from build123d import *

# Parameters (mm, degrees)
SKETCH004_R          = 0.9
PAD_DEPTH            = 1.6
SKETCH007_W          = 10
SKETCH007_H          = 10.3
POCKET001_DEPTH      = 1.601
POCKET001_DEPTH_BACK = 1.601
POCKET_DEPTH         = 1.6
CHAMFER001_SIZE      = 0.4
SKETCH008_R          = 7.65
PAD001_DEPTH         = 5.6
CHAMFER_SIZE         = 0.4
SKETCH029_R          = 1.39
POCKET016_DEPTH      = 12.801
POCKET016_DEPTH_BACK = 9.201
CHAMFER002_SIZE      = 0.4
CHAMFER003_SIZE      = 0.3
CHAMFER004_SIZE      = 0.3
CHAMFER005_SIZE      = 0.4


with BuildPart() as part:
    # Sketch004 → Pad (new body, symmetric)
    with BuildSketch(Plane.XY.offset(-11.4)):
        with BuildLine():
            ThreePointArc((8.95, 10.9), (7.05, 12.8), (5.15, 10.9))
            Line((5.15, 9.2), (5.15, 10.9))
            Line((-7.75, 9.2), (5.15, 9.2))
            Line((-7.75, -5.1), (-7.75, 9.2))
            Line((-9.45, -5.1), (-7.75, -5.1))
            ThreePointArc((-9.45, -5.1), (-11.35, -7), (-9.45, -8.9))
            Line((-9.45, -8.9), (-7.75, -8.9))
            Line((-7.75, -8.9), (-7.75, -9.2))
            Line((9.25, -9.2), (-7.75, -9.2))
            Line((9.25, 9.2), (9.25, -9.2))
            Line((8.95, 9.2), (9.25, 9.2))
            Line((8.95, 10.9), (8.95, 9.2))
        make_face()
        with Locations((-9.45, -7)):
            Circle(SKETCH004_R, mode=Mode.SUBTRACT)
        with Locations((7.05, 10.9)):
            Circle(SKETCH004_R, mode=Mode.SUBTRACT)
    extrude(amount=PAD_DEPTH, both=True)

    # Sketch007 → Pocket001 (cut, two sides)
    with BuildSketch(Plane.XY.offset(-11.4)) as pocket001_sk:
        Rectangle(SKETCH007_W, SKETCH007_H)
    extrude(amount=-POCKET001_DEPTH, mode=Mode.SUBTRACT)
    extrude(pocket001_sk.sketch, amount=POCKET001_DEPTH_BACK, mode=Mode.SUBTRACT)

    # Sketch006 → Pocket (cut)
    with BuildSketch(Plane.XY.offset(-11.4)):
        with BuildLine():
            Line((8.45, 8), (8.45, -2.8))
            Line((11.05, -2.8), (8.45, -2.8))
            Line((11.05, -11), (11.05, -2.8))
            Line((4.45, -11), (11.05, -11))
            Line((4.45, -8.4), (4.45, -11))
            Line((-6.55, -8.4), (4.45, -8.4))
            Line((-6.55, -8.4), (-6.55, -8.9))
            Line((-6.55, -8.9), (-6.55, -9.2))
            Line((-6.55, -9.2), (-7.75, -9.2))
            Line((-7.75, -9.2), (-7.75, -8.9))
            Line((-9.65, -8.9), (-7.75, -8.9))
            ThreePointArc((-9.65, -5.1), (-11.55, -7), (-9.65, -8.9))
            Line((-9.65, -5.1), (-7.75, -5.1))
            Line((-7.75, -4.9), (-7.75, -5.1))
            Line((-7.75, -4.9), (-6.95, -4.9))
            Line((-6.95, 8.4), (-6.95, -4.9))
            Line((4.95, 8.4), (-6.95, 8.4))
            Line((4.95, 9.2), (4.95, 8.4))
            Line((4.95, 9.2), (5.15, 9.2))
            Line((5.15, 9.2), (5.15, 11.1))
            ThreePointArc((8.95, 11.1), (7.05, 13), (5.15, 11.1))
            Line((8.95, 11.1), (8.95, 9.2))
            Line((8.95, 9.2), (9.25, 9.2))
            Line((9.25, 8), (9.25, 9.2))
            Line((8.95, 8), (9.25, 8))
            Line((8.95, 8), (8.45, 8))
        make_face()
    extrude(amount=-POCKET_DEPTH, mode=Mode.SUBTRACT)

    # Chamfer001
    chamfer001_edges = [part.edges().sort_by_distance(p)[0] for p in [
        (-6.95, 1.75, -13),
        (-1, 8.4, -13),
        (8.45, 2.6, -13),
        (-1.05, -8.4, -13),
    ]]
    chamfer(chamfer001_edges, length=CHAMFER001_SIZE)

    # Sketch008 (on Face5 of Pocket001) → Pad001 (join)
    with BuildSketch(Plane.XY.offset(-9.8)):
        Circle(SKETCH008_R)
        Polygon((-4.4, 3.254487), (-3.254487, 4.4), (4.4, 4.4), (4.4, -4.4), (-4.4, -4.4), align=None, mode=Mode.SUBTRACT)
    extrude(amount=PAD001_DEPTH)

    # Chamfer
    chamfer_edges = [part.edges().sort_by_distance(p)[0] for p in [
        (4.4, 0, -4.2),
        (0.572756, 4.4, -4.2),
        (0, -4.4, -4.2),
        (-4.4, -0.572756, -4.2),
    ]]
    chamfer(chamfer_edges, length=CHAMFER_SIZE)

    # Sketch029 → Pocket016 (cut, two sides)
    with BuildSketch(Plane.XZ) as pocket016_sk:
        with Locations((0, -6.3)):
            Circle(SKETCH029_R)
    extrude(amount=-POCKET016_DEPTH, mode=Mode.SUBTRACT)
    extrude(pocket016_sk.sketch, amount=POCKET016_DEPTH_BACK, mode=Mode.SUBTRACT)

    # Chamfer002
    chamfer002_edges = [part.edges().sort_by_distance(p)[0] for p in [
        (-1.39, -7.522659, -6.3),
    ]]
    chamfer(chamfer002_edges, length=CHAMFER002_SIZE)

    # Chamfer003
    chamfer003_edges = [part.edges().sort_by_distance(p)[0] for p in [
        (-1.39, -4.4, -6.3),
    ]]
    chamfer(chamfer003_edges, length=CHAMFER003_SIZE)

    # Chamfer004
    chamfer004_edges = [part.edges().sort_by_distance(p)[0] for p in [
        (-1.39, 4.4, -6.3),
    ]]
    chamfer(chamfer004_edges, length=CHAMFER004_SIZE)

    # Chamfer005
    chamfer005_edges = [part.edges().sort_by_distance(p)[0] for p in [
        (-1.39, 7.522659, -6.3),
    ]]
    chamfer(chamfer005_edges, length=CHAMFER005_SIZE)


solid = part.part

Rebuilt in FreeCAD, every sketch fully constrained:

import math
import FreeCAD as App
import Part
import Sketcher

V = App.Vector
Q = App.Units.Quantity


def edges_at(feature, points):
    """Names of the edges that pass closest to the given points."""
    edges = feature.Shape.Edges
    near = lambda p: min(range(len(edges)), key=lambda i: edges[i].distToShape(Part.Vertex(*p))[0])
    return sorted({f"Edge{near(p) + 1}" for p in points})


def add_polygon(sketch, points):
    """Adds a closed chain of lines whose ends are joined by coincident constraints."""
    first, n = sketch.GeometryCount, len(points)
    for a, b in zip(points, points[1:] + points[:1]):
        sketch.addGeometry(Part.LineSegment(App.Vector(*a, 0), App.Vector(*b, 0)), False)
    for i in range(n):
        sketch.addConstraint(Sketcher.Constraint("Coincident", first + i, 2, first + (i + 1) % n, 1))

doc = App.newDocument("Part")
body = doc.addObject("PartDesign::Body", "Body")

# Sketch on XY plane
sketch1 = body.newObject("Sketcher::SketchObject", "Sketch")
sketch1.AttachmentSupport = (doc.getObject("XY_Plane"), [""])
sketch1.MapMode = "FlatFace"
sketch1.AttachmentOffset = App.Placement(V(0, 0, -11.4), App.Rotation())
sketch1.addGeometry([
    Part.ArcOfCircle(Part.Circle(V(7.05, 10.9, 0), V(0, 0, 1), 1.9), math.radians(0), math.radians(180)),  # 0
    Part.LineSegment(V(5.15, 10.9, 0), V(5.15, 9.2, 0)),  # 1
    Part.LineSegment(V(5.15, 9.2, 0), V(-7.75, 9.2, 0)),  # 2
    Part.LineSegment(V(-7.75, 9.2, 0), V(-7.75, -5.1, 0)),  # 3
    Part.LineSegment(V(-7.75, -5.1, 0), V(-9.45, -5.1, 0)),  # 4
    Part.ArcOfCircle(Part.Circle(V(-9.45, -7, 0), V(0, 0, 1), 1.9), math.radians(90), math.radians(270)),  # 5
    Part.LineSegment(V(-9.45, -8.9, 0), V(-7.75, -8.9, 0)),  # 6
    Part.LineSegment(V(-7.75, -8.9, 0), V(-7.75, -9.2, 0)),  # 7
    Part.LineSegment(V(-7.75, -9.2, 0), V(9.25, -9.2, 0)),  # 8
    Part.LineSegment(V(9.25, -9.2, 0), V(9.25, 9.2, 0)),  # 9
    Part.LineSegment(V(9.25, 9.2, 0), V(8.95, 9.2, 0)),  # 10
    Part.LineSegment(V(8.95, 9.2, 0), V(8.95, 10.9, 0)),  # 11
    Part.Circle(V(-9.45, -7, 0), V(0, 0, 1), 0.9),  # 12
    Part.Circle(V(7.05, 10.9, 0), V(0, 0, 1), 0.9),  # 13
], False)
sketch1.addConstraint([
    Sketcher.Constraint("Tangent", 0, 2, 1, 1),
    Sketcher.Constraint("Coincident", 1, 2, 2, 1),
    Sketcher.Constraint("Coincident", 2, 2, 3, 1),
    Sketcher.Constraint("Coincident", 3, 2, 4, 1),
    Sketcher.Constraint("Tangent", 4, 2, 5, 1),
    Sketcher.Constraint("Tangent", 5, 2, 6, 1),
    Sketcher.Constraint("Coincident", 6, 2, 7, 1),
    Sketcher.Constraint("Coincident", 7, 2, 8, 1),
    Sketcher.Constraint("Coincident", 8, 2, 9, 1),
    Sketcher.Constraint("Coincident", 9, 2, 10, 1),
    Sketcher.Constraint("Coincident", 10, 2, 11, 1),
    Sketcher.Constraint("Tangent", 11, 2, 0, 1),
    Sketcher.Constraint("Vertical", 1),
    Sketcher.Constraint("Horizontal", 2),
    Sketcher.Constraint("Vertical", 3),
    Sketcher.Constraint("Horizontal", 4),
    Sketcher.Constraint("Horizontal", 6),
    Sketcher.Constraint("Vertical", 7),
    Sketcher.Constraint("Horizontal", 8),
    Sketcher.Constraint("Vertical", 9),
    Sketcher.Constraint("Horizontal", 10),
    Sketcher.Constraint("Vertical", 11),
    Sketcher.Constraint("Coincident", 12, 3, 5, 3),
    Sketcher.Constraint("Coincident", 13, 3, 0, 3),
    Sketcher.Constraint("Equal", 0, 5),
    Sketcher.Constraint("Equal", 12, 13),
    Sketcher.Constraint("Symmetric", 2, 2, 7, 2, -1),
    Sketcher.Constraint("Horizontal", 2, 2, 9, 2),
    Sketcher.Constraint("Equal", 6, 1),
    Sketcher.Constraint("Equal", 10, 7),
    Sketcher.Constraint("Diameter", 12, Q("1.8 mm")),
    Sketcher.Constraint("Radius", 0, Q("1.9 mm")),
    Sketcher.Constraint("DistanceX", 8, 1, 8, 2, Q("17 mm")),
    Sketcher.Constraint("DistanceX", 2, 2, 2, 1, Q("12.9 mm")),
    Sketcher.Constraint("DistanceX", 4, 2, 4, 1, Q("1.7 mm")),
    Sketcher.Constraint("DistanceY", 3, 2, 3, 1, Q("14.3 mm")),
    Sketcher.Constraint("DistanceX", -1, 1, 0, 3, Q("7.05 mm")),
])
pad1 = body.newObject("PartDesign::Pad", "Pad")
pad1.Profile = sketch1
pad1.Length = 3.2
pad1.Midplane = True

# Sketch on XY plane
sketch2 = body.newObject("Sketcher::SketchObject", "Sketch001")
sketch2.AttachmentSupport = (doc.getObject("XY_Plane"), [""])
sketch2.MapMode = "FlatFace"
sketch2.AttachmentOffset = App.Placement(V(0, 0, -11.4), App.Rotation())
add_polygon(sketch2, [(-5, 5.15), (-5, -5.15), (5, -5.15), (5, 5.15)])  # lines 0-3
sketch2.addConstraint([
    Sketcher.Constraint("Vertical", 0),
    Sketcher.Constraint("Horizontal", 1),
    Sketcher.Constraint("Vertical", 2),
    Sketcher.Constraint("Horizontal", 3),
    Sketcher.Constraint("Symmetric", 0, 2, 2, 2, -1, 1),
    Sketcher.Constraint("DistanceX", 1, 1, 1, 2, Q("10 mm")),
    Sketcher.Constraint("DistanceY", 0, 2, 0, 1, Q("10.3 mm")),
])
pocket1 = body.newObject("PartDesign::Pocket", "Pocket")
pocket1.Profile = sketch2
pocket1.Type = "ThroughAll"
pocket1.Midplane = True

# Sketch on XY plane
sketch3 = body.newObject("Sketcher::SketchObject", "Sketch002")
sketch3.AttachmentSupport = (doc.getObject("XY_Plane"), [""])
sketch3.MapMode = "FlatFace"
sketch3.AttachmentOffset = App.Placement(V(0, 0, -11.4), App.Rotation())
sketch3.addGeometry([
    Part.LineSegment(V(8.45, -2.8, 0), V(8.45, 8, 0)),  # 0
    Part.LineSegment(V(8.45, 8, 0), V(9.25, 8, 0)),  # 1
    Part.LineSegment(V(9.25, 8, 0), V(9.25, 9.2, 0)),  # 2
    Part.LineSegment(V(9.25, 9.2, 0), V(8.95, 9.2, 0)),  # 3
    Part.LineSegment(V(8.95, 9.2, 0), V(8.95, 11.1, 0)),  # 4
    Part.ArcOfCircle(Part.Circle(V(7.05, 11.1, 0), V(0, 0, 1), 1.9), math.radians(0), math.radians(180)),  # 5
    Part.LineSegment(V(5.15, 11.1, 0), V(5.15, 9.2, 0)),  # 6
    Part.LineSegment(V(5.15, 9.2, 0), V(4.95, 9.2, 0)),  # 7
    Part.LineSegment(V(4.95, 9.2, 0), V(4.95, 8.4, 0)),  # 8
    Part.LineSegment(V(4.95, 8.4, 0), V(-6.95, 8.4, 0)),  # 9
    Part.LineSegment(V(-6.95, 8.4, 0), V(-6.95, -4.9, 0)),  # 10
    Part.LineSegment(V(-6.95, -4.9, 0), V(-7.75, -4.9, 0)),  # 11
    Part.LineSegment(V(-7.75, -4.9, 0), V(-7.75, -5.1, 0)),  # 12
    Part.LineSegment(V(-7.75, -5.1, 0), V(-9.65, -5.1, 0)),  # 13
    Part.ArcOfCircle(Part.Circle(V(-9.65, -7, 0), V(0, 0, 1), 1.9), math.radians(90), math.radians(270)),  # 14
    Part.LineSegment(V(-9.65, -8.9, 0), V(-7.75, -8.9, 0)),  # 15
    Part.LineSegment(V(-7.75, -8.9, 0), V(-7.75, -9.2, 0)),  # 16
    Part.LineSegment(V(-7.75, -9.2, 0), V(-6.55, -9.2, 0)),  # 17
    Part.LineSegment(V(-6.55, -9.2, 0), V(-6.55, -8.4, 0)),  # 18
    Part.LineSegment(V(-6.55, -8.4, 0), V(4.45, -8.4, 0)),  # 19
    Part.LineSegment(V(4.45, -8.4, 0), V(4.45, -11, 0)),  # 20
    Part.LineSegment(V(4.45, -11, 0), V(11.05, -11, 0)),  # 21
    Part.LineSegment(V(11.05, -11, 0), V(11.05, -2.8, 0)),  # 22
    Part.LineSegment(V(11.05, -2.8, 0), V(8.45, -2.8, 0)),  # 23
], False)
sketch3.addConstraint([
    Sketcher.Constraint("Coincident", 0, 2, 1, 1),
    Sketcher.Constraint("Coincident", 1, 2, 2, 1),
    Sketcher.Constraint("Coincident", 2, 2, 3, 1),
    Sketcher.Constraint("Coincident", 3, 2, 4, 1),
    Sketcher.Constraint("Tangent", 4, 2, 5, 1),
    Sketcher.Constraint("Tangent", 5, 2, 6, 1),
    Sketcher.Constraint("Coincident", 6, 2, 7, 1),
    Sketcher.Constraint("Coincident", 7, 2, 8, 1),
    Sketcher.Constraint("Coincident", 8, 2, 9, 1),
    Sketcher.Constraint("Coincident", 9, 2, 10, 1),
    Sketcher.Constraint("Coincident", 10, 2, 11, 1),
    Sketcher.Constraint("Coincident", 11, 2, 12, 1),
    Sketcher.Constraint("Coincident", 12, 2, 13, 1),
    Sketcher.Constraint("Tangent", 13, 2, 14, 1),
    Sketcher.Constraint("Tangent", 14, 2, 15, 1),
    Sketcher.Constraint("Coincident", 15, 2, 16, 1),
    Sketcher.Constraint("Coincident", 16, 2, 17, 1),
    Sketcher.Constraint("Coincident", 17, 2, 18, 1),
    Sketcher.Constraint("Coincident", 18, 2, 19, 1),
    Sketcher.Constraint("Coincident", 19, 2, 20, 1),
    Sketcher.Constraint("Coincident", 20, 2, 21, 1),
    Sketcher.Constraint("Coincident", 21, 2, 22, 1),
    Sketcher.Constraint("Coincident", 22, 2, 23, 1),
    Sketcher.Constraint("Coincident", 23, 2, 0, 1),
    Sketcher.Constraint("Vertical", 0),
    Sketcher.Constraint("Horizontal", 1),
    Sketcher.Constraint("Vertical", 2),
    Sketcher.Constraint("Horizontal", 3),
    Sketcher.Constraint("Vertical", 4),
    Sketcher.Constraint("Vertical", 6),
    Sketcher.Constraint("Horizontal", 7),
    Sketcher.Constraint("Vertical", 8),
    Sketcher.Constraint("Horizontal", 9),
    Sketcher.Constraint("Vertical", 10),
    Sketcher.Constraint("Horizontal", 11),
    Sketcher.Constraint("Vertical", 12),
    Sketcher.Constraint("Horizontal", 13),
    Sketcher.Constraint("Horizontal", 15),
    Sketcher.Constraint("Vertical", 16),
    Sketcher.Constraint("Horizontal", 17),
    Sketcher.Constraint("Vertical", 18),
    Sketcher.Constraint("Horizontal", 19),
    Sketcher.Constraint("Vertical", 20),
    Sketcher.Constraint("Horizontal", 21),
    Sketcher.Constraint("Vertical", 22),
    Sketcher.Constraint("Horizontal", 23),
    Sketcher.Constraint("Equal", 5, 14),
    Sketcher.Constraint("Horizontal", 3, 2, 6, 2),
    Sketcher.Constraint("Vertical", 12, 2, 15, 2),
    Sketcher.Constraint("Equal", 1, 11),
    Sketcher.Constraint("Equal", 17, 2),
    Sketcher.Constraint("Equal", 15, 4),
    Sketcher.Constraint("Equal", 11, 8),
    Sketcher.Constraint("Equal", 7, 12),
    Sketcher.Constraint("Equal", 3, 16),
    Sketcher.Constraint("Equal", 8, 18),
    Sketcher.Constraint("Equal", 23, 20),
    Sketcher.Constraint("Radius", 5, Q("1.9 mm")),
    Sketcher.Constraint("DistanceX", 19, 1, 19, 2, Q("11 mm")),
    Sketcher.Constraint("DistanceX", 1, 1, 1, 2, Q("0.8 mm")),
    Sketcher.Constraint("DistanceX", 3, 2, 3, 1, Q("0.3 mm")),
    Sketcher.Constraint("DistanceX", 7, 2, 7, 1, Q("0.2 mm")),
    Sketcher.Constraint("DistanceX", 9, 2, 9, 1, Q("11.9 mm")),
    Sketcher.Constraint("DistanceX", 13, 2, 13, 1, Q("1.9 mm")),
    Sketcher.Constraint("DistanceX", 17, 1, 17, 2, Q("1.2 mm")),
    Sketcher.Constraint("DistanceX", 21, 1, 21, 2, Q("6.6 mm")),
    Sketcher.Constraint("DistanceY", 0, 1, 0, 2, Q("10.8 mm")),
    Sketcher.Constraint("DistanceY", 10, 2, 10, 1, Q("13.3 mm")),
    Sketcher.Constraint("DistanceY", 14, 3, -1, 1, Q("7 mm")),
    Sketcher.Constraint("DistanceX", -1, 1, 5, 3, Q("7.05 mm")),
])
pocket2 = body.newObject("PartDesign::Pocket", "Pocket001")
pocket2.Profile = sketch3
pocket2.Length = 1.6
doc.recompute()

chamfer = body.newObject("PartDesign::Chamfer", "Chamfer")
chamfer.Base = (pocket2, edges_at(pocket2, [
    (-6.95, 1.75, -13),
    (-1, 8.4, -13),
    (8.45, 2.6, -13),
    (-1.05, -8.4, -13),
]))
chamfer.Size = 0.4

# Sketch on XY plane
sketch4 = body.newObject("Sketcher::SketchObject", "Sketch003")
sketch4.AttachmentSupport = (doc.getObject("XY_Plane"), [""])
sketch4.MapMode = "FlatFace"
sketch4.AttachmentOffset = App.Placement(V(0, 0, -9.8), App.Rotation())
sketch4.addGeometry(Part.Circle(V(0, 0, 0), V(0, 0, 1), 7.65), False)  # 0
add_polygon(sketch4, [(-4.4, -4.4), (-4.4, 3.254487), (-3.254487, 4.4), (4.4, 4.4), (4.4, -4.4)])  # lines 1-5
sketch4.addConstraint([
    Sketcher.Constraint("Vertical", 1),
    Sketcher.Constraint("Horizontal", 3),
    Sketcher.Constraint("Vertical", 4),
    Sketcher.Constraint("Horizontal", 5),
    Sketcher.Constraint("Coincident", 0, 3, -1, 1),
    Sketcher.Constraint("Symmetric", 3, 2, 5, 2, -1, 1),
    Sketcher.Constraint("Equal", 3, 1),
    Sketcher.Constraint("Equal", 5, 4),
    Sketcher.Constraint("Diameter", 0, Q("15.3 mm")),
    Sketcher.Constraint("DistanceX", 5, 2, 5, 1, Q("8.8 mm")),
    Sketcher.Constraint("Distance", 2, Q("1.62 mm")),
])
pad2 = body.newObject("PartDesign::Pad", "Pad001")
pad2.Profile = sketch4
pad2.Length = 5.6
doc.recompute()

chamfer2 = body.newObject("PartDesign::Chamfer", "Chamfer001")
chamfer2.Base = (pad2, edges_at(pad2, [
    (4.4, 0, -4.2),
    (0.573, 4.4, -4.2),
    (0, -4.4, -4.2),
    (-4.4, -0.573, -4.2),
]))
chamfer2.Size = 0.4

# Sketch on XZ plane
sketch5 = body.newObject("Sketcher::SketchObject", "Sketch004")
sketch5.AttachmentSupport = (doc.getObject("XZ_Plane"), [""])
sketch5.MapMode = "FlatFace"
sketch5.addGeometry(Part.Circle(V(0, -6.3, 0), V(0, 0, 1), 1.39), False)
sketch5.addConstraint([
    Sketcher.Constraint("PointOnObject", 0, 3, -2),
    Sketcher.Constraint("Diameter", 0, Q("2.78 mm")),
    Sketcher.Constraint("DistanceY", 0, 3, -1, 1, Q("6.3 mm")),
])
pocket3 = body.newObject("PartDesign::Pocket", "Pocket002")
pocket3.Profile = sketch5
pocket3.Type = "ThroughAll"
pocket3.Midplane = True
doc.recompute()

chamfer3 = body.newObject("PartDesign::Chamfer", "Chamfer002")
chamfer3.Base = (pocket3, edges_at(pocket3, [(-1.39, -7.523, -6.3)]))
chamfer3.Size = 0.4
doc.recompute()

chamfer4 = body.newObject("PartDesign::Chamfer", "Chamfer003")
chamfer4.Base = (chamfer3, edges_at(chamfer3, [(-1.39, -4.4, -6.3)]))
chamfer4.Size = 0.3
doc.recompute()

chamfer5 = body.newObject("PartDesign::Chamfer", "Chamfer004")
chamfer5.Base = (chamfer4, edges_at(chamfer4, [(-1.39, 4.4, -6.3)]))
chamfer5.Size = 0.3
doc.recompute()

chamfer6 = body.newObject("PartDesign::Chamfer", "Chamfer005")
chamfer6.Base = (chamfer5, edges_at(chamfer5, [(-1.39, 7.523, -6.3)]))
chamfer6.Size = 0.4

doc.recompute()
